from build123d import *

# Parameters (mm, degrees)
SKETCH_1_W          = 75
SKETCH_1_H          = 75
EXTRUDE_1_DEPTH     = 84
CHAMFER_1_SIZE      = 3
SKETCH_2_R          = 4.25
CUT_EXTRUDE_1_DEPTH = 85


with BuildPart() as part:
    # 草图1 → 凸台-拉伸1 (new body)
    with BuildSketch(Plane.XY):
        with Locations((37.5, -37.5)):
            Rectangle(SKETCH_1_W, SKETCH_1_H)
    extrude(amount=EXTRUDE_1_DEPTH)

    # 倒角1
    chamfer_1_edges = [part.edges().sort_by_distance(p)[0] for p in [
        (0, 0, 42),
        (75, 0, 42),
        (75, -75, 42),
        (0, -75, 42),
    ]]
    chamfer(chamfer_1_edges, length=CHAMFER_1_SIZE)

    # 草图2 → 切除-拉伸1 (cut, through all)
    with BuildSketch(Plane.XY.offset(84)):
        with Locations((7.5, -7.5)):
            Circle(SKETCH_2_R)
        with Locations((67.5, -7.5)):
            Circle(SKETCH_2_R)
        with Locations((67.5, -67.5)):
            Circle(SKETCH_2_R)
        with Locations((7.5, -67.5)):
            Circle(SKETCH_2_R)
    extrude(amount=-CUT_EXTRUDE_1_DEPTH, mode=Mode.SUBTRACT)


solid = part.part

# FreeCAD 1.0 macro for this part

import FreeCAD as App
import Part
import Sketcher
from FreeCAD import Vector
Q = App.Units.Quantity


def edges_at(feature, points):
    """Names of the edges that pass closest to the given points."""
    edges = feature.Shape.Edges
    near = lambda p: min(range(len(edges)), key=lambda i: edges[i].distToShape(Part.Vertex(*p))[0])
    return sorted({f"Edge{near(p) + 1}" for p in points})


def add_polygon(sketch, points):
    """Adds a closed chain of lines whose ends are joined by coincident constraints."""
    first, n = sketch.GeometryCount, len(points)
    for a, b in zip(points, points[1:] + points[:1]):
        sketch.addGeometry(Part.LineSegment(App.Vector(*a, 0), App.Vector(*b, 0)), False)
    for i in range(n):
        sketch.addConstraint(Sketcher.Constraint("Coincident", first + i, 2, first + (i + 1) % n, 1))

doc = App.newDocument("Part")
body = doc.addObject("PartDesign::Body", "Body")

# Sketch on XY plane
sketch1 = body.newObject("Sketcher::SketchObject", "Sketch")
sketch1.AttachmentSupport = (doc.getObject("XY_Plane"), [""])
sketch1.MapMode = "FlatFace"
add_polygon(sketch1, [(0, 0), (0, -75), (75, -75), (75, 0)])  # lines 0-3
sketch1.addConstraint(Sketcher.Constraint("Vertical", 0))
sketch1.addConstraint(Sketcher.Constraint("Horizontal", 1))
sketch1.addConstraint(Sketcher.Constraint("Vertical", 2))
sketch1.addConstraint(Sketcher.Constraint("Horizontal", 3))
sketch1.addConstraint(Sketcher.Constraint("Coincident", 3, 2, -1, 1))
sketch1.addConstraint(Sketcher.Constraint("Equal", 3, 0))
sketch1.addConstraint(Sketcher.Constraint("DistanceX", 1, 1, 1, 2, Q("75 mm")))
pad1 = body.newObject("PartDesign::Pad", "Pad")
pad1.Profile = sketch1
pad1.Length = 84
doc.recompute()

chamfer = body.newObject("PartDesign::Chamfer", "Chamfer")
chamfer.Base = (pad1, edges_at(pad1, [
    (0, 0, 42),
    (75, 0, 42),
    (75, -75, 42),
    (0, -75, 42),
]))
chamfer.Size = 3

# Sketch on XY plane
sketch2 = body.newObject("Sketcher::SketchObject", "Sketch001")
sketch2.AttachmentSupport = (doc.getObject("XY_Plane"), [""])
sketch2.MapMode = "FlatFace"
sketch2.AttachmentOffset = App.Placement(Vector(0, 0, 84), App.Rotation())
sketch2.addGeometry(Part.Circle(Vector(7.5, -7.5, 0), Vector(0, 0, 1), 4.2), False)
sketch2.addGeometry(Part.Circle(Vector(67.5, -7.5, 0), Vector(0, 0, 1), 4.2), False)
sketch2.addGeometry(Part.Circle(Vector(67.5, -67.5, 0), Vector(0, 0, 1), 4.2), False)
sketch2.addGeometry(Part.Circle(Vector(7.5, -67.5, 0), Vector(0, 0, 1), 4.2), False)
sketch2.addConstraint(Sketcher.Constraint("Equal", 0, 1))
sketch2.addConstraint(Sketcher.Constraint("Equal", 1, 2))
sketch2.addConstraint(Sketcher.Constraint("Equal", 2, 3))
sketch2.addConstraint(Sketcher.Constraint("Horizontal", 0, 3, 1, 3))
sketch2.addConstraint(Sketcher.Constraint("Horizontal", 2, 3, 3, 3))
sketch2.addConstraint(Sketcher.Constraint("Vertical", 1, 3, 2, 3))
sketch2.addConstraint(Sketcher.Constraint("Vertical", 0, 3, 3, 3))
sketch2.addConstraint(Sketcher.Constraint("Diameter", 0, Q("8.5 mm")))
sketch2.addConstraint(Sketcher.Constraint("DistanceX", 0, 3, 1, 3, Q("60 mm")))
sketch2.addConstraint(Sketcher.Constraint("DistanceY", 2, 3, 1, 3, Q("60 mm")))
sketch2.addConstraint(Sketcher.Constraint("DistanceX", -1, 1, 0, 3, Q("7.5 mm")))
sketch2.addConstraint(Sketcher.Constraint("DistanceY", 0, 3, -1, 1, Q("7.5 mm")))
pocket1 = body.newObject("PartDesign::Pocket", "Pocket")
pocket1.Profile = sketch2
pocket1.Type = "ThroughAll"

doc.recompute()
